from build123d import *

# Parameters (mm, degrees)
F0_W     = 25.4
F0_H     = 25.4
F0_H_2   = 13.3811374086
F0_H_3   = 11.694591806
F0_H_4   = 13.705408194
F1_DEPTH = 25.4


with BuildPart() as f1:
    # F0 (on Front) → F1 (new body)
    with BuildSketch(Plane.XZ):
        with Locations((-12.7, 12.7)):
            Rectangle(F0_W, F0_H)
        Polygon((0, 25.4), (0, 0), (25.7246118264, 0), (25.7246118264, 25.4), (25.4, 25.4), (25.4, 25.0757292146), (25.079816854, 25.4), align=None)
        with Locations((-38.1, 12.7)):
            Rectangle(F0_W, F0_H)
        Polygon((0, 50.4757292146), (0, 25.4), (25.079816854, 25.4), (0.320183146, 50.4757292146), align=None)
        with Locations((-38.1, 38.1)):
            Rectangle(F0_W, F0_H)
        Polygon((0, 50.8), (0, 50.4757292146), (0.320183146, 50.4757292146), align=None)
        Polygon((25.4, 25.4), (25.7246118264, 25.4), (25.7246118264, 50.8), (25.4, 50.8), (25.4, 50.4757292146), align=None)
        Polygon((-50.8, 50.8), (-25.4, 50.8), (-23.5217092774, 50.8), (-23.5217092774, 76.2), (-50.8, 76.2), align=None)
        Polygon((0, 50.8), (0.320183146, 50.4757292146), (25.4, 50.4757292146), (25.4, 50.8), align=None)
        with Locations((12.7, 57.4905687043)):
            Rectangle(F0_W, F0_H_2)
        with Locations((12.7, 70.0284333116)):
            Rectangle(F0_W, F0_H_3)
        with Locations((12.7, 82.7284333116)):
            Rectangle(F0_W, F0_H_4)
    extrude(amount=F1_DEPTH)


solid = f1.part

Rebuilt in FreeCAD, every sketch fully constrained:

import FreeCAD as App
import Part
import Sketcher
from FreeCAD import Vector
Q = App.Units.Quantity


def add_polygon(sketch, points):
    """Adds a closed chain of lines whose ends are joined by coincident constraints."""
    first, n = sketch.GeometryCount, len(points)
    for a, b in zip(points, points[1:] + points[:1]):
        sketch.addGeometry(Part.LineSegment(App.Vector(*a, 0), App.Vector(*b, 0)), False)
    for i in range(n):
        sketch.addConstraint(Sketcher.Constraint("Coincident", first + i, 2, first + (i + 1) % n, 1))

doc = App.newDocument("Part")
body = doc.addObject("PartDesign::Body", "Body")

# Sketch on XZ plane
sketch1 = body.newObject("Sketcher::SketchObject", "Sketch")
sketch1.AttachmentSupport = (doc.getObject("XZ_Plane"), [""])
sketch1.MapMode = "FlatFace"
add_polygon(sketch1, [(25.72, 0), (25.72, 50.8), (25.4, 50.8), (25.4, 89.58), (0, 89.58), (0, 25.4), (-25.4, 25.4), (-25.4, 50.8), (-23.52, 50.8), (-23.52, 76.2), (-50.8, 76.2), (-50.8, 0)])  # lines 0-11
add_polygon(sketch1, [(25.4, 50.48), (25.4, 25.08), (25.08, 25.4), (0.32, 50.48)])  # lines 12-15
sketch1.addConstraint([
    Sketcher.Constraint("Vertical", 0),
    Sketcher.Constraint("Horizontal", 1),
    Sketcher.Constraint("Vertical", 2),
    Sketcher.Constraint("Horizontal", 3),
    Sketcher.Constraint("Vertical", 4),
    Sketcher.Constraint("Horizontal", 5),
    Sketcher.Constraint("Vertical", 6),
    Sketcher.Constraint("Horizontal", 7),
    Sketcher.Constraint("Vertical", 8),
    Sketcher.Constraint("Horizontal", 9),
    Sketcher.Constraint("Vertical", 10),
    Sketcher.Constraint("Horizontal", 11),
    Sketcher.Constraint("Vertical", 12),
    Sketcher.Constraint("Horizontal", 15),
    Sketcher.Constraint("Symmetric", 1, 2, 6, 2, -2),
    Sketcher.Constraint("PointOnObject", 3, 2, -2),
    Sketcher.Constraint("PointOnObject", 10, 2, -1),
    Sketcher.Constraint("Parallel", 13, 14),
    Sketcher.Constraint("Horizontal", 5, 2, 13, 2),
    Sketcher.Constraint("Vertical", 2, 2, 12, 2),
    Sketcher.Constraint("Equal", 5, 6),
    Sketcher.Constraint("Equal", 6, 8),
    Sketcher.Constraint("Equal", 8, 12),
    Sketcher.Constraint("DistanceX", 3, 2, 3, 1, Q("1 in")),
    Sketcher.Constraint("DistanceY", 0, 1, 0, 2, Q("2 in")),
    Sketcher.Constraint("DistanceX", 9, 2, -1, 1, Q("2 in")),
    Sketcher.Constraint("DistanceX", 1, 2, 1, 1, Q("0.324612 mm")),
    Sketcher.Constraint("DistanceX", 7, 1, 7, 2, Q("1.878291 mm")),
    Sketcher.Constraint("Distance", 14, Q("35.239632 mm")),
    Sketcher.Constraint("DistanceX", 15, 1, 15, 2, Q("25.079817 mm")),
    Sketcher.Constraint("DistanceY", 2, 1, 2, 2, Q("38.781137 mm")),
])
pad1 = body.newObject("PartDesign::Pad", "Pad")
pad1.Profile = sketch1
pad1.Length = Q("1 in")

doc.recompute()
